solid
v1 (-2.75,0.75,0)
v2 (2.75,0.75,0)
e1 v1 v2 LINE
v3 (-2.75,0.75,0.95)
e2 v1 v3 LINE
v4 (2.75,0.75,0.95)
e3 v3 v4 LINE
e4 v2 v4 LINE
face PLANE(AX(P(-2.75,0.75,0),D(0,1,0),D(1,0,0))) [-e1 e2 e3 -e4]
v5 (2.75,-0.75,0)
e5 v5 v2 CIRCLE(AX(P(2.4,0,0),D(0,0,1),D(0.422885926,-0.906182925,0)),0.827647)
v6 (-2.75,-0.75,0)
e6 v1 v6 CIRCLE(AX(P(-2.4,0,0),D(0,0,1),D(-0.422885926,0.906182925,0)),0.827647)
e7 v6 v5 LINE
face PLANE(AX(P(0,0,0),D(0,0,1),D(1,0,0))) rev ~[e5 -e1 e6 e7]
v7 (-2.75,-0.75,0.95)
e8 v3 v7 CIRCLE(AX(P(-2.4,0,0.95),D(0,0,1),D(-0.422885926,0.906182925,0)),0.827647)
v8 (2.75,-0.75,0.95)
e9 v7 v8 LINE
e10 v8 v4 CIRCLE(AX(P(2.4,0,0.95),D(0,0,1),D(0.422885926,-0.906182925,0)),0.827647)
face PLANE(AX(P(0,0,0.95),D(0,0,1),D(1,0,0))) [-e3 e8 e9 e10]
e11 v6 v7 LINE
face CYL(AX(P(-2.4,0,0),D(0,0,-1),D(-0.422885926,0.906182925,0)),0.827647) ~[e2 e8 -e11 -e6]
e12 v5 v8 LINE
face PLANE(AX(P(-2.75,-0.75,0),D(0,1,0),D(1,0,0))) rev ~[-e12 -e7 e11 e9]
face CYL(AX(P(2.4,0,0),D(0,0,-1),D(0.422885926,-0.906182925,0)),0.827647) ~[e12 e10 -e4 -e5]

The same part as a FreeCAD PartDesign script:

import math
import FreeCAD as App
import Part
import Sketcher
from FreeCAD import Vector
Q = App.Units.Quantity

doc = App.newDocument("Part")
body = doc.addObject("PartDesign::Body", "Body")

sketch1 = body.newObject("Sketcher::SketchObject", "Sketch")
sketch1.AttachmentSupport = (doc.getObject("XY_Plane"), [""])
sketch1.MapMode = "FlatFace"
sketch1.addGeometry(Part.LineSegment(Vector(-2.8, -0.8, 0), Vector(2.8, -0.8, 0)), False)
sketch1.addGeometry(Part.ArcOfCircle(Part.Circle(Vector(2.4, 0, 0), Vector(0, 0, 1), 0.8), math.radians(-65), math.radians(65)), False)
sketch1.addGeometry(Part.LineSegment(Vector(2.8, 0.8, 0), Vector(-2.8, 0.8, 0)), False)
sketch1.addGeometry(Part.ArcOfCircle(Part.Circle(Vector(-2.4, 0, 0), Vector(0, 0, 1), 0.8), math.radians(115), math.radians(245)), False)
sketch1.addConstraint(Sketcher.Constraint("Coincident", 0, 2, 1, 1))
sketch1.addConstraint(Sketcher.Constraint("Coincident", 1, 2, 2, 1))
sketch1.addConstraint(Sketcher.Constraint("Coincident", 2, 2, 3, 1))
sketch1.addConstraint(Sketcher.Constraint("Coincident", 3, 2, 0, 1))
sketch1.addConstraint(Sketcher.Constraint("Horizontal", 0))
sketch1.addConstraint(Sketcher.Constraint("Horizontal", 2))
sketch1.addConstraint(Sketcher.Constraint("Equal", 1, 3))
sketch1.addConstraint(Sketcher.Constraint("Symmetric", 1, 3, 3, 3, -1, 1))
sketch1.addConstraint(Sketcher.Constraint("Symmetric", 0, 2, 1, 2, -1))
sketch1.addConstraint(Sketcher.Constraint("DistanceX", 0, 1, 0, 2, Q("5.5 mm")))
sketch1.addConstraint(Sketcher.Constraint("DistanceX", -1, 1, 1, 3, Q("2.4 mm")))
sketch1.addConstraint(Sketcher.Constraint("DistanceY", 0, 2, 1, 2, Q("1.5 mm")))
pad1 = body.newObject("PartDesign::Pad", "Pad")
pad1.Profile = sketch1
pad1.Length = 0.95

doc.recompute()
